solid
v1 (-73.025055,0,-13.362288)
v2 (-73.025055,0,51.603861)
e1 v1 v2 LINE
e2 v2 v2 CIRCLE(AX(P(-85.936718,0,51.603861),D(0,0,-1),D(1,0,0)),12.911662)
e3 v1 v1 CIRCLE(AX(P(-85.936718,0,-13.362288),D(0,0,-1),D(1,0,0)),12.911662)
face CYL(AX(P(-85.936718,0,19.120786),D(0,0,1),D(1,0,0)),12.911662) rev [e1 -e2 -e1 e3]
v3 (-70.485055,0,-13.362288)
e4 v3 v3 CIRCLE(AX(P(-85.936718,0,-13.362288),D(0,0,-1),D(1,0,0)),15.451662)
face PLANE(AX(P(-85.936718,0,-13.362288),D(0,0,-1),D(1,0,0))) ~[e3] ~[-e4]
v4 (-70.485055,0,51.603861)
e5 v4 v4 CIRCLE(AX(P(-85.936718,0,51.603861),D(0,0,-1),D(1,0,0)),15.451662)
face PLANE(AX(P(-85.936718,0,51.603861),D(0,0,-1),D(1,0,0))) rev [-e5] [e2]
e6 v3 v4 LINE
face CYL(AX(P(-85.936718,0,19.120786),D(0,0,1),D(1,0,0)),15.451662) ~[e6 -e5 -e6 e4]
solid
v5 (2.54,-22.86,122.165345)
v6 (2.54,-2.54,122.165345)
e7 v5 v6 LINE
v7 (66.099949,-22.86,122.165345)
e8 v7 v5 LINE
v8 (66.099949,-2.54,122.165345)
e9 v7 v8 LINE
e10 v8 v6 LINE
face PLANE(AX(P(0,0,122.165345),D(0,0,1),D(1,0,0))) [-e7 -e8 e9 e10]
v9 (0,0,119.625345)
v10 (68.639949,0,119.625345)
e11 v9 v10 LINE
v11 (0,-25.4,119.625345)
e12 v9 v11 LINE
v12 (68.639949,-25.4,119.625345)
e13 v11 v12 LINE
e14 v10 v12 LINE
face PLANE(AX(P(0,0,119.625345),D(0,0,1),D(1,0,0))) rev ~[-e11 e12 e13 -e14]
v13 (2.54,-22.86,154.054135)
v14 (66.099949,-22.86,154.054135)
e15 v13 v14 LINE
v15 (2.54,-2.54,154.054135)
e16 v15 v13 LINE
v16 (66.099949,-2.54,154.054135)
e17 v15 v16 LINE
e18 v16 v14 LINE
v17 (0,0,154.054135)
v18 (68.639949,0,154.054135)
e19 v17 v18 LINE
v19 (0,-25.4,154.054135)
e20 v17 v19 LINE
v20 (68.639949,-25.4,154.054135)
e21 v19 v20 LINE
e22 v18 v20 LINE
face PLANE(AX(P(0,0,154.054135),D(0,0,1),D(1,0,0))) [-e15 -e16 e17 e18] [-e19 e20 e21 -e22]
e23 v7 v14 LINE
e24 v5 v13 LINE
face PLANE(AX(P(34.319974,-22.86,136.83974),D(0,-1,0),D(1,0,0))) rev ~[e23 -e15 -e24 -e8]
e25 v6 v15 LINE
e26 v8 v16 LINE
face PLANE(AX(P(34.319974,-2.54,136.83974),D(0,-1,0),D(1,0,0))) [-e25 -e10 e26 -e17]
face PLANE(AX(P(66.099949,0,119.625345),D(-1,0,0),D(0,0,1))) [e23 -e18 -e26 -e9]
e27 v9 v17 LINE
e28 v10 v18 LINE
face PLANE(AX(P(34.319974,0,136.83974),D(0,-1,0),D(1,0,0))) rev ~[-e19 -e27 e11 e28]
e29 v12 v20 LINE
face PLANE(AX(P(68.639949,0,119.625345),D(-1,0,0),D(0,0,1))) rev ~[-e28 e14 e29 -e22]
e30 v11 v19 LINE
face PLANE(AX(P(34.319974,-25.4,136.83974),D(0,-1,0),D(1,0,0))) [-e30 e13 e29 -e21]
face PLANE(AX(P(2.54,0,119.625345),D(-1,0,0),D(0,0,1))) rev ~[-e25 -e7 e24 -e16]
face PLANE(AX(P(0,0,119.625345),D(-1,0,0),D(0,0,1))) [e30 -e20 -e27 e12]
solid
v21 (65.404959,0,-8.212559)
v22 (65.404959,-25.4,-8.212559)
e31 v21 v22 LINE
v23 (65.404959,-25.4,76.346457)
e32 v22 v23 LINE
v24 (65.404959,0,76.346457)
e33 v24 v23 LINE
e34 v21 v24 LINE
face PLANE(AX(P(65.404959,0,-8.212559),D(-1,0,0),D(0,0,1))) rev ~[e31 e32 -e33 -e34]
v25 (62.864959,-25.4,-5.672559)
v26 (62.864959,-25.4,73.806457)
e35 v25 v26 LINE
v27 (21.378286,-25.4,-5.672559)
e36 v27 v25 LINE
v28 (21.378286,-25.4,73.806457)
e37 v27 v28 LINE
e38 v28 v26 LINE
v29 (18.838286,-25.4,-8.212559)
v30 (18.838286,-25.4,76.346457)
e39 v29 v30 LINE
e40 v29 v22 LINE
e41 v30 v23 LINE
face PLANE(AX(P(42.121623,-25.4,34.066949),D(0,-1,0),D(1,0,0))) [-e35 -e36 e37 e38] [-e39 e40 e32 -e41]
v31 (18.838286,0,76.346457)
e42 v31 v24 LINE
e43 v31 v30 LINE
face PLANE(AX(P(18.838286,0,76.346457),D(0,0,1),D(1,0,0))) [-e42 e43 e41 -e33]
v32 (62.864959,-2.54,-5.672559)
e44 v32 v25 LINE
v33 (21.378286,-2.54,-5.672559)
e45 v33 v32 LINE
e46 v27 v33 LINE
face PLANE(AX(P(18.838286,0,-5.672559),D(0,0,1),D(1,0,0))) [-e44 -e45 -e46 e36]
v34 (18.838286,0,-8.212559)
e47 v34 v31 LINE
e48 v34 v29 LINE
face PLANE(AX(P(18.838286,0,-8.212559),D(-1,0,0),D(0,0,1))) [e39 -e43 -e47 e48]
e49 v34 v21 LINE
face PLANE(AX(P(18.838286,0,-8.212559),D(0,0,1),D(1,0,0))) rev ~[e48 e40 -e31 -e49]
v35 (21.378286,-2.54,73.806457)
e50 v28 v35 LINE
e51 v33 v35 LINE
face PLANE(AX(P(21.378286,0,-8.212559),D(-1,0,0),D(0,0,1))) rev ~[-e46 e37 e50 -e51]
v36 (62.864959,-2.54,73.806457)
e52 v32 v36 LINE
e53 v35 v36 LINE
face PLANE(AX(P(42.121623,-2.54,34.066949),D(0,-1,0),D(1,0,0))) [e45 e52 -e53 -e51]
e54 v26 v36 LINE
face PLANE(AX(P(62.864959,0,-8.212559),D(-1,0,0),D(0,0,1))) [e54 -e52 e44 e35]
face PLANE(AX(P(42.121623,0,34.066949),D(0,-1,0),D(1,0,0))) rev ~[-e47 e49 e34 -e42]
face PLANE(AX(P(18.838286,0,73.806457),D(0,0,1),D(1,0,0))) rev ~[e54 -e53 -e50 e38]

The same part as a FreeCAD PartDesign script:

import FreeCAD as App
import Part
import Sketcher


def faces_at(feature, points):
    """Names of the faces that lie closest to the given points."""
    faces = feature.Shape.Faces
    near = lambda p: min(range(len(faces)), key=lambda i: faces[i].distToShape(Part.Vertex(*p))[0])
    return sorted({f"Face{near(p) + 1}" for p in points})


def add_polygon(sketch, points):
    """Adds a closed chain of lines whose ends are joined by coincident constraints."""
    first, n = sketch.GeometryCount, len(points)
    for a, b in zip(points, points[1:] + points[:1]):
        sketch.addGeometry(Part.LineSegment(App.Vector(*a, 0), App.Vector(*b, 0)), False)
    for i in range(n):
        sketch.addConstraint(Sketcher.Constraint("Coincident", first + i, 2, first + (i + 1) % n, 1))

doc = App.newDocument("Part")
params = doc.addObject("Spreadsheet::Sheet", "Params")
for row, (alias, value) in enumerate([
    ("pad1_length", "1 in"),
    ("thickness_wall", "0.1 in"),
    ("pad2_length", "1 in"),
    ("pad3_length", "1 in"),
    ("thickness2_wall", "0.1 in"),
    ("pad4_length", "1 in"),
    ("revolution_angle", "360 deg"),
    ("thickness3_wall", "0.1 in"),
], start=1):
    params.set(f"A{row}", alias)
    params.set(f"B{row}", "=" + value)
    params.setAlias(f"B{row}", alias)

body = doc.addObject("PartDesign::Body", "Body")

# Sketch on XZ plane
sketch1 = body.newObject("Sketcher::SketchObject", "Sketch")
sketch1.AttachmentSupport = (doc.getObject("XZ_Plane"), [""])
sketch1.MapMode = "FlatFace"
add_polygon(sketch1, [(0, 154), (0, 120), (69, 120), (69, 154)])  # lines 0-3
sketch1.addConstraint([
    Sketcher.Constraint("Vertical", 0),
    Sketcher.Constraint("Horizontal", 1),
    Sketcher.Constraint("Vertical", 2),
    Sketcher.Constraint("Horizontal", 3),
    Sketcher.Constraint("PointOnObject", 0, 2, -2),
    Sketcher.Constraint("DistanceX", 1, 1, 1, 2, 68.639949),
    Sketcher.Constraint("DistanceY", 0, 2, 0, 1, 34.42879),
    Sketcher.Constraint("DistanceY", -1, 1, 0, 2, 119.625345),
])
pad1 = body.newObject("PartDesign::Pad", "Pad")
pad1.Profile = sketch1
pad1.setExpression("Length", "Params.pad1_length")
doc.recompute()

thickness = body.newObject("PartDesign::Thickness", "Thickness")
thickness.Base = (pad1, faces_at(pad1, [(34.32, -12.7, 154.054)]))
thickness.setExpression("Value", "Params.thickness_wall")
thickness.Reversed = True
thickness.Join = "Arc"
body2 = doc.addObject("PartDesign::Body", "Body001")

# Sketch on XZ plane
sketch2 = body2.newObject("Sketcher::SketchObject", "Sketch001")
sketch2.AttachmentSupport = (doc.getObject("XZ_Plane001"), [""])
sketch2.MapMode = "FlatFace"
add_polygon(sketch2, [(-86, 52), (-86, -13), (-70, -13), (-70, 52)])  # lines 0-3
sketch2.addConstraint([
    Sketcher.Constraint("Vertical", 0),
    Sketcher.Constraint("Horizontal", 1),
    Sketcher.Constraint("Vertical", 2),
    Sketcher.Constraint("Horizontal", 3),
    Sketcher.Constraint("DistanceY", 0, 2, 0, 1, 64.96615),
    Sketcher.Constraint("DistanceX", 1, 1, 1, 2, 15.451662),
    Sketcher.Constraint("DistanceY", 0, 2, -1, 1, 13.362288),
    Sketcher.Constraint("DistanceX", 0, 2, -1, 1, 85.936718),
])
pad2 = body2.newObject("PartDesign::Pad", "Pad001")
pad2.Profile = sketch2
pad2.setExpression("Length", "Params.pad2_length")
body3 = doc.addObject("PartDesign::Body", "Body002")

# Sketch on XZ plane
sketch3 = body3.newObject("Sketcher::SketchObject", "Sketch002")
sketch3.AttachmentSupport = (doc.getObject("XZ_Plane002"), [""])
sketch3.MapMode = "FlatFace"
add_polygon(sketch3, [(19, 76), (19, -8), (65, -8), (65, 76)])  # lines 0-3
sketch3.addConstraint([
    Sketcher.Constraint("Vertical", 0),
    Sketcher.Constraint("Horizontal", 1),
    Sketcher.Constraint("Vertical", 2),
    Sketcher.Constraint("Horizontal", 3),
    Sketcher.Constraint("DistanceX", 1, 1, 1, 2, 46.566673),
    Sketcher.Constraint("DistanceY", 0, 2, 0, 1, 84.559016),
    Sketcher.Constraint("DistanceY", 0, 2, -1, 1, 8.212559),
    Sketcher.Constraint("DistanceX", -1, 1, 1, 2, 65.404959),
])
pad3 = body3.newObject("PartDesign::Pad", "Pad002")
pad3.Profile = sketch3
pad3.setExpression("Length", "Params.pad3_length")
doc.recompute()

thickness2 = body3.newObject("PartDesign::Thickness", "Thickness001")
thickness2.Base = (pad3, faces_at(pad3, [(42.122, -25.4, 34.067)]))
thickness2.setExpression("Value", "Params.thickness2_wall")
thickness2.Reversed = True
thickness2.Join = "Arc"
body4 = doc.addObject("PartDesign::Body", "Body003")

# Sketch on XZ plane
sketch4 = body4.newObject("Sketcher::SketchObject", "Sketch003")
sketch4.AttachmentSupport = (doc.getObject("XZ_Plane003"), [""])
sketch4.MapMode = "FlatFace"
add_polygon(sketch4, [(-76, -69), (-76, -99), (29, -99), (29, -69)])  # lines 0-3
sketch4.addConstraint([
    Sketcher.Constraint("Vertical", 0),
    Sketcher.Constraint("Horizontal", 1),
    Sketcher.Constraint("Vertical", 2),
    Sketcher.Constraint("Horizontal", 3),
    Sketcher.Constraint("DistanceX", 1, 1, 1, 2, 104.751483),
    Sketcher.Constraint("DistanceY", 0, 2, 0, 1, 29.427357),
    Sketcher.Constraint("DistanceX", 0, 2, -1, 1, 75.776711),
    Sketcher.Constraint("DistanceY", 0, 2, -1, 1, 98.50388),
])
pad4 = body4.newObject("PartDesign::Pad", "Pad003")
pad4.Profile = sketch4
pad4.setExpression("Length", "Params.pad4_length")
body5 = doc.addObject("PartDesign::Body", "Body004")

# Sketch on XZ plane
sketch5 = body5.newObject("Sketcher::SketchObject", "Sketch004")
sketch5.AttachmentSupport = (doc.getObject("XZ_Plane004"), [""])
sketch5.MapMode = "FlatFace"
add_polygon(sketch5, [(-86, 52), (-86, -13), (-70, -13), (-70, 52)])  # lines 0-3
sketch5.addGeometry(Part.LineSegment(App.Vector(-86, 52, 0), App.Vector(-86, -13, 0)), True)  # axis
sketch5.addConstraint([
    Sketcher.Constraint("Vertical", 0),
    Sketcher.Constraint("Horizontal", 1),
    Sketcher.Constraint("Vertical", 2),
    Sketcher.Constraint("Horizontal", 3),
    Sketcher.Constraint("Vertical", 4),
    Sketcher.Constraint("Coincident", 4, 1, 3, 2),
    Sketcher.Constraint("Horizontal", 1, 2, 4, 2),
    Sketcher.Constraint("DistanceY", 0, 2, 0, 1, 64.96615),
    Sketcher.Constraint("DistanceX", 1, 1, 1, 2, 15.451662),
    Sketcher.Constraint("DistanceY", 0, 2, -1, 1, 13.362288),
    Sketcher.Constraint("DistanceX", 0, 2, -1, 1, 85.936718),
])
revolution = body5.newObject("PartDesign::Revolution", "Revolution")
revolution.Profile = sketch5
revolution.ReferenceAxis = (sketch5, ["Axis0"])
revolution.setExpression("Angle", "Params.revolution_angle")
doc.recompute()

thickness3 = body5.newObject("PartDesign::Thickness", "Thickness002")
thickness3.Base = (revolution, faces_at(revolution, [(-85.937, 0, 51.604), (-85.937, 0, -13.362)]))
thickness3.setExpression("Value", "Params.thickness3_wall")
thickness3.Reversed = True
thickness3.Join = "Arc"
body2.Visibility = False
body4.Visibility = False

doc.recompute()
